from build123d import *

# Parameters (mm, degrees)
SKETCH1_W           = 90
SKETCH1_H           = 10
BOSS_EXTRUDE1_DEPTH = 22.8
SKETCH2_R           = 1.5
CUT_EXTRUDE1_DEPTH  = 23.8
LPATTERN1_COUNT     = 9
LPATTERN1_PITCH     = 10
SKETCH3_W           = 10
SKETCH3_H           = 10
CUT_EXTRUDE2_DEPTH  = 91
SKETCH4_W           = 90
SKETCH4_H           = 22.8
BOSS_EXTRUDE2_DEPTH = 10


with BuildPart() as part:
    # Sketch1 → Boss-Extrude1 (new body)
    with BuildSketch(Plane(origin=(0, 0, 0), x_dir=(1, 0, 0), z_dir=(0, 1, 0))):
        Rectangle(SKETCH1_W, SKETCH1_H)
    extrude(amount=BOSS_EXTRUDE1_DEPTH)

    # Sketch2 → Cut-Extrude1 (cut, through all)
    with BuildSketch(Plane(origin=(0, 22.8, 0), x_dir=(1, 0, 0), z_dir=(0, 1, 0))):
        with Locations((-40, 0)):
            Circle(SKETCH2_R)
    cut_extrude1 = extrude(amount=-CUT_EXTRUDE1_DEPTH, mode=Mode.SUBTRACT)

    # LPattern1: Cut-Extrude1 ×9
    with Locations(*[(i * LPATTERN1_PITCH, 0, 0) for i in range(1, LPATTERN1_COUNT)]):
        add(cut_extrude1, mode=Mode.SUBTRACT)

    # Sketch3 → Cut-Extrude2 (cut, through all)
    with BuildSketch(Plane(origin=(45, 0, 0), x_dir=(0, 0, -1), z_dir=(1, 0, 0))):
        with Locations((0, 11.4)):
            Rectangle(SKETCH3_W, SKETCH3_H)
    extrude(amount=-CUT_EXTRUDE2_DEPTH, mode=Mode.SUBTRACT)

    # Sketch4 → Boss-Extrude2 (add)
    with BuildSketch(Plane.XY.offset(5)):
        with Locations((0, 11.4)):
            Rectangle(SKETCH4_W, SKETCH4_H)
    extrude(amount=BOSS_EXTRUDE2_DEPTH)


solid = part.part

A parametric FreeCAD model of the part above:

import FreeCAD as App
import Part
import Sketcher
from FreeCAD import Vector

doc = App.newDocument("Part")
body = doc.addObject("PartDesign::Body", "Body")
body.AllowCompound = True

# Sketch on XZ plane
sketch1 = body.newObject("Sketcher::SketchObject", "Sketch")
sketch1.AttachmentSupport = (doc.getObject("XZ_Plane"), [""])
sketch1.MapMode = "FlatFace"
sketch1.addGeometry(Part.LineSegment(Vector(-45, -5, 0), Vector(-45, 5, 0)), False)
sketch1.addGeometry(Part.LineSegment(Vector(-45, 5, 0), Vector(45, 5, 0)), False)
sketch1.addGeometry(Part.LineSegment(Vector(45, 5, 0), Vector(45, -5, 0)), False)
sketch1.addGeometry(Part.LineSegment(Vector(45, -5, 0), Vector(-45, -5, 0)), False)
sketch1.addConstraint(Sketcher.Constraint("Coincident", 0, 2, 1, 1))
sketch1.addConstraint(Sketcher.Constraint("Coincident", 1, 2, 2, 1))
sketch1.addConstraint(Sketcher.Constraint("Coincident", 2, 2, 3, 1))
sketch1.addConstraint(Sketcher.Constraint("Coincident", 3, 2, 0, 1))
sketch1.addConstraint(Sketcher.Constraint("Vertical", 0))
sketch1.addConstraint(Sketcher.Constraint("Horizontal", 1))
sketch1.addConstraint(Sketcher.Constraint("Vertical", 2))
sketch1.addConstraint(Sketcher.Constraint("Horizontal", 3))
sketch1.addConstraint(Sketcher.Constraint("Symmetric", 0, 2, 2, 2, -1, 1))
sketch1.addConstraint(Sketcher.Constraint("DistanceX", 1, 1, 1, 2, 90.0))
sketch1.addConstraint(Sketcher.Constraint("DistanceY", 0, 1, 0, 2, 10.0))
pad1 = body.newObject("PartDesign::Pad", "Pad")
pad1.Profile = sketch1
pad1.Length = 22.8
pad1.Reversed = True

# Sketch on XZ plane
sketch2 = body.newObject("Sketcher::SketchObject", "Sketch001")
sketch2.AttachmentSupport = (doc.getObject("XZ_Plane"), [""])
sketch2.MapMode = "FlatFace"
sketch2.AttachmentOffset = App.Placement(Vector(0, 0, -22.8), App.Rotation())
sketch2.addGeometry(Part.Circle(Vector(-40, 0, 0), Vector(0, 0, 1), 1.5), False)
sketch2.addConstraint(Sketcher.Constraint("PointOnObject", 0, 3, -1))
sketch2.addConstraint(Sketcher.Constraint("Diameter", 0, 3.0))
sketch2.addConstraint(Sketcher.Constraint("DistanceX", 0, 3, -1, 1, 40.0))
pocket1 = body.newObject("PartDesign::Pocket", "Pocket")
pocket1.Profile = sketch2
pocket1.Type = "ThroughAll"
pocket1.Reversed = True
doc.recompute()

linearpattern = body.newObject("PartDesign::LinearPattern", "LinearPattern")
linearpattern.Originals = [pocket1]
linearpattern.Direction = (doc.getObject("X_Axis"), [""])
linearpattern.Mode = "offset"
linearpattern.Offset = 10
linearpattern.Occurrences = 9
body.Tip = linearpattern

# Sketch on YZ plane
sketch3 = body.newObject("Sketcher::SketchObject", "Sketch002")
sketch3.AttachmentSupport = (doc.getObject("YZ_Plane"), [""])
sketch3.MapMode = "FlatFace"
sketch3.AttachmentOffset = App.Placement(Vector(0, 0, 45), App.Rotation())
sketch3.addGeometry(Part.LineSegment(Vector(16, 5, 0), Vector(6, 5, 0)), False)
sketch3.addGeometry(Part.LineSegment(Vector(6, 5, 0), Vector(6, -5, 0)), False)
sketch3.addGeometry(Part.LineSegment(Vector(6, -5, 0), Vector(16, -5, 0)), False)
sketch3.addGeometry(Part.LineSegment(Vector(16, -5, 0), Vector(16, 5, 0)), False)
sketch3.addConstraint(Sketcher.Constraint("Coincident", 0, 2, 1, 1))
sketch3.addConstraint(Sketcher.Constraint("Coincident", 1, 2, 2, 1))
sketch3.addConstraint(Sketcher.Constraint("Coincident", 2, 2, 3, 1))
sketch3.addConstraint(Sketcher.Constraint("Coincident", 3, 2, 0, 1))
sketch3.addConstraint(Sketcher.Constraint("Horizontal", 0))
sketch3.addConstraint(Sketcher.Constraint("Vertical", 1))
sketch3.addConstraint(Sketcher.Constraint("Horizontal", 2))
sketch3.addConstraint(Sketcher.Constraint("Vertical", 3))
sketch3.addConstraint(Sketcher.Constraint("Equal", 2, 1))
sketch3.addConstraint(Sketcher.Constraint("DistanceX", 0, 2, 0, 1, 10.0))
sketch3.addConstraint(Sketcher.Constraint("DistanceY", -1, 1, 0, 2, 5.0))
sketch3.addConstraint(Sketcher.Constraint("DistanceX", -1, 1, 0, 2, 6.4))
pocket2 = body.newObject("PartDesign::Pocket", "Pocket001")
pocket2.Profile = sketch3
pocket2.Type = "ThroughAll"

# Sketch on XY plane
sketch4 = body.newObject("Sketcher::SketchObject", "Sketch003")
sketch4.AttachmentSupport = (doc.getObject("XY_Plane"), [""])
sketch4.MapMode = "FlatFace"
sketch4.AttachmentOffset = App.Placement(Vector(0, 0, 5), App.Rotation())
sketch4.addGeometry(Part.LineSegment(Vector(-45, 23, 0), Vector(-45, 0, 0)), False)
sketch4.addGeometry(Part.LineSegment(Vector(-45, 0, 0), Vector(45, 0, 0)), False)
sketch4.addGeometry(Part.LineSegment(Vector(45, 0, 0), Vector(45, 23, 0)), False)
sketch4.addGeometry(Part.LineSegment(Vector(45, 23, 0), Vector(-45, 23, 0)), False)
sketch4.addConstraint(Sketcher.Constraint("Coincident", 0, 2, 1, 1))
sketch4.addConstraint(Sketcher.Constraint("Coincident", 1, 2, 2, 1))
sketch4.addConstraint(Sketcher.Constraint("Coincident", 2, 2, 3, 1))
sketch4.addConstraint(Sketcher.Constraint("Coincident", 3, 2, 0, 1))
sketch4.addConstraint(Sketcher.Constraint("Vertical", 0))
sketch4.addConstraint(Sketcher.Constraint("Horizontal", 1))
sketch4.addConstraint(Sketcher.Constraint("Vertical", 2))
sketch4.addConstraint(Sketcher.Constraint("Horizontal", 3))
sketch4.addConstraint(Sketcher.Constraint("Symmetric", 0, 2, 1, 2, -1, 1))
sketch4.addConstraint(Sketcher.Constraint("DistanceX", 1, 1, 1, 2, 90.0))
sketch4.addConstraint(Sketcher.Constraint("DistanceY", 0, 2, 0, 1, 22.8))
pad2 = body.newObject("PartDesign::Pad", "Pad001")
pad2.Profile = sketch4
pad2.Length = 10

doc.recompute()
